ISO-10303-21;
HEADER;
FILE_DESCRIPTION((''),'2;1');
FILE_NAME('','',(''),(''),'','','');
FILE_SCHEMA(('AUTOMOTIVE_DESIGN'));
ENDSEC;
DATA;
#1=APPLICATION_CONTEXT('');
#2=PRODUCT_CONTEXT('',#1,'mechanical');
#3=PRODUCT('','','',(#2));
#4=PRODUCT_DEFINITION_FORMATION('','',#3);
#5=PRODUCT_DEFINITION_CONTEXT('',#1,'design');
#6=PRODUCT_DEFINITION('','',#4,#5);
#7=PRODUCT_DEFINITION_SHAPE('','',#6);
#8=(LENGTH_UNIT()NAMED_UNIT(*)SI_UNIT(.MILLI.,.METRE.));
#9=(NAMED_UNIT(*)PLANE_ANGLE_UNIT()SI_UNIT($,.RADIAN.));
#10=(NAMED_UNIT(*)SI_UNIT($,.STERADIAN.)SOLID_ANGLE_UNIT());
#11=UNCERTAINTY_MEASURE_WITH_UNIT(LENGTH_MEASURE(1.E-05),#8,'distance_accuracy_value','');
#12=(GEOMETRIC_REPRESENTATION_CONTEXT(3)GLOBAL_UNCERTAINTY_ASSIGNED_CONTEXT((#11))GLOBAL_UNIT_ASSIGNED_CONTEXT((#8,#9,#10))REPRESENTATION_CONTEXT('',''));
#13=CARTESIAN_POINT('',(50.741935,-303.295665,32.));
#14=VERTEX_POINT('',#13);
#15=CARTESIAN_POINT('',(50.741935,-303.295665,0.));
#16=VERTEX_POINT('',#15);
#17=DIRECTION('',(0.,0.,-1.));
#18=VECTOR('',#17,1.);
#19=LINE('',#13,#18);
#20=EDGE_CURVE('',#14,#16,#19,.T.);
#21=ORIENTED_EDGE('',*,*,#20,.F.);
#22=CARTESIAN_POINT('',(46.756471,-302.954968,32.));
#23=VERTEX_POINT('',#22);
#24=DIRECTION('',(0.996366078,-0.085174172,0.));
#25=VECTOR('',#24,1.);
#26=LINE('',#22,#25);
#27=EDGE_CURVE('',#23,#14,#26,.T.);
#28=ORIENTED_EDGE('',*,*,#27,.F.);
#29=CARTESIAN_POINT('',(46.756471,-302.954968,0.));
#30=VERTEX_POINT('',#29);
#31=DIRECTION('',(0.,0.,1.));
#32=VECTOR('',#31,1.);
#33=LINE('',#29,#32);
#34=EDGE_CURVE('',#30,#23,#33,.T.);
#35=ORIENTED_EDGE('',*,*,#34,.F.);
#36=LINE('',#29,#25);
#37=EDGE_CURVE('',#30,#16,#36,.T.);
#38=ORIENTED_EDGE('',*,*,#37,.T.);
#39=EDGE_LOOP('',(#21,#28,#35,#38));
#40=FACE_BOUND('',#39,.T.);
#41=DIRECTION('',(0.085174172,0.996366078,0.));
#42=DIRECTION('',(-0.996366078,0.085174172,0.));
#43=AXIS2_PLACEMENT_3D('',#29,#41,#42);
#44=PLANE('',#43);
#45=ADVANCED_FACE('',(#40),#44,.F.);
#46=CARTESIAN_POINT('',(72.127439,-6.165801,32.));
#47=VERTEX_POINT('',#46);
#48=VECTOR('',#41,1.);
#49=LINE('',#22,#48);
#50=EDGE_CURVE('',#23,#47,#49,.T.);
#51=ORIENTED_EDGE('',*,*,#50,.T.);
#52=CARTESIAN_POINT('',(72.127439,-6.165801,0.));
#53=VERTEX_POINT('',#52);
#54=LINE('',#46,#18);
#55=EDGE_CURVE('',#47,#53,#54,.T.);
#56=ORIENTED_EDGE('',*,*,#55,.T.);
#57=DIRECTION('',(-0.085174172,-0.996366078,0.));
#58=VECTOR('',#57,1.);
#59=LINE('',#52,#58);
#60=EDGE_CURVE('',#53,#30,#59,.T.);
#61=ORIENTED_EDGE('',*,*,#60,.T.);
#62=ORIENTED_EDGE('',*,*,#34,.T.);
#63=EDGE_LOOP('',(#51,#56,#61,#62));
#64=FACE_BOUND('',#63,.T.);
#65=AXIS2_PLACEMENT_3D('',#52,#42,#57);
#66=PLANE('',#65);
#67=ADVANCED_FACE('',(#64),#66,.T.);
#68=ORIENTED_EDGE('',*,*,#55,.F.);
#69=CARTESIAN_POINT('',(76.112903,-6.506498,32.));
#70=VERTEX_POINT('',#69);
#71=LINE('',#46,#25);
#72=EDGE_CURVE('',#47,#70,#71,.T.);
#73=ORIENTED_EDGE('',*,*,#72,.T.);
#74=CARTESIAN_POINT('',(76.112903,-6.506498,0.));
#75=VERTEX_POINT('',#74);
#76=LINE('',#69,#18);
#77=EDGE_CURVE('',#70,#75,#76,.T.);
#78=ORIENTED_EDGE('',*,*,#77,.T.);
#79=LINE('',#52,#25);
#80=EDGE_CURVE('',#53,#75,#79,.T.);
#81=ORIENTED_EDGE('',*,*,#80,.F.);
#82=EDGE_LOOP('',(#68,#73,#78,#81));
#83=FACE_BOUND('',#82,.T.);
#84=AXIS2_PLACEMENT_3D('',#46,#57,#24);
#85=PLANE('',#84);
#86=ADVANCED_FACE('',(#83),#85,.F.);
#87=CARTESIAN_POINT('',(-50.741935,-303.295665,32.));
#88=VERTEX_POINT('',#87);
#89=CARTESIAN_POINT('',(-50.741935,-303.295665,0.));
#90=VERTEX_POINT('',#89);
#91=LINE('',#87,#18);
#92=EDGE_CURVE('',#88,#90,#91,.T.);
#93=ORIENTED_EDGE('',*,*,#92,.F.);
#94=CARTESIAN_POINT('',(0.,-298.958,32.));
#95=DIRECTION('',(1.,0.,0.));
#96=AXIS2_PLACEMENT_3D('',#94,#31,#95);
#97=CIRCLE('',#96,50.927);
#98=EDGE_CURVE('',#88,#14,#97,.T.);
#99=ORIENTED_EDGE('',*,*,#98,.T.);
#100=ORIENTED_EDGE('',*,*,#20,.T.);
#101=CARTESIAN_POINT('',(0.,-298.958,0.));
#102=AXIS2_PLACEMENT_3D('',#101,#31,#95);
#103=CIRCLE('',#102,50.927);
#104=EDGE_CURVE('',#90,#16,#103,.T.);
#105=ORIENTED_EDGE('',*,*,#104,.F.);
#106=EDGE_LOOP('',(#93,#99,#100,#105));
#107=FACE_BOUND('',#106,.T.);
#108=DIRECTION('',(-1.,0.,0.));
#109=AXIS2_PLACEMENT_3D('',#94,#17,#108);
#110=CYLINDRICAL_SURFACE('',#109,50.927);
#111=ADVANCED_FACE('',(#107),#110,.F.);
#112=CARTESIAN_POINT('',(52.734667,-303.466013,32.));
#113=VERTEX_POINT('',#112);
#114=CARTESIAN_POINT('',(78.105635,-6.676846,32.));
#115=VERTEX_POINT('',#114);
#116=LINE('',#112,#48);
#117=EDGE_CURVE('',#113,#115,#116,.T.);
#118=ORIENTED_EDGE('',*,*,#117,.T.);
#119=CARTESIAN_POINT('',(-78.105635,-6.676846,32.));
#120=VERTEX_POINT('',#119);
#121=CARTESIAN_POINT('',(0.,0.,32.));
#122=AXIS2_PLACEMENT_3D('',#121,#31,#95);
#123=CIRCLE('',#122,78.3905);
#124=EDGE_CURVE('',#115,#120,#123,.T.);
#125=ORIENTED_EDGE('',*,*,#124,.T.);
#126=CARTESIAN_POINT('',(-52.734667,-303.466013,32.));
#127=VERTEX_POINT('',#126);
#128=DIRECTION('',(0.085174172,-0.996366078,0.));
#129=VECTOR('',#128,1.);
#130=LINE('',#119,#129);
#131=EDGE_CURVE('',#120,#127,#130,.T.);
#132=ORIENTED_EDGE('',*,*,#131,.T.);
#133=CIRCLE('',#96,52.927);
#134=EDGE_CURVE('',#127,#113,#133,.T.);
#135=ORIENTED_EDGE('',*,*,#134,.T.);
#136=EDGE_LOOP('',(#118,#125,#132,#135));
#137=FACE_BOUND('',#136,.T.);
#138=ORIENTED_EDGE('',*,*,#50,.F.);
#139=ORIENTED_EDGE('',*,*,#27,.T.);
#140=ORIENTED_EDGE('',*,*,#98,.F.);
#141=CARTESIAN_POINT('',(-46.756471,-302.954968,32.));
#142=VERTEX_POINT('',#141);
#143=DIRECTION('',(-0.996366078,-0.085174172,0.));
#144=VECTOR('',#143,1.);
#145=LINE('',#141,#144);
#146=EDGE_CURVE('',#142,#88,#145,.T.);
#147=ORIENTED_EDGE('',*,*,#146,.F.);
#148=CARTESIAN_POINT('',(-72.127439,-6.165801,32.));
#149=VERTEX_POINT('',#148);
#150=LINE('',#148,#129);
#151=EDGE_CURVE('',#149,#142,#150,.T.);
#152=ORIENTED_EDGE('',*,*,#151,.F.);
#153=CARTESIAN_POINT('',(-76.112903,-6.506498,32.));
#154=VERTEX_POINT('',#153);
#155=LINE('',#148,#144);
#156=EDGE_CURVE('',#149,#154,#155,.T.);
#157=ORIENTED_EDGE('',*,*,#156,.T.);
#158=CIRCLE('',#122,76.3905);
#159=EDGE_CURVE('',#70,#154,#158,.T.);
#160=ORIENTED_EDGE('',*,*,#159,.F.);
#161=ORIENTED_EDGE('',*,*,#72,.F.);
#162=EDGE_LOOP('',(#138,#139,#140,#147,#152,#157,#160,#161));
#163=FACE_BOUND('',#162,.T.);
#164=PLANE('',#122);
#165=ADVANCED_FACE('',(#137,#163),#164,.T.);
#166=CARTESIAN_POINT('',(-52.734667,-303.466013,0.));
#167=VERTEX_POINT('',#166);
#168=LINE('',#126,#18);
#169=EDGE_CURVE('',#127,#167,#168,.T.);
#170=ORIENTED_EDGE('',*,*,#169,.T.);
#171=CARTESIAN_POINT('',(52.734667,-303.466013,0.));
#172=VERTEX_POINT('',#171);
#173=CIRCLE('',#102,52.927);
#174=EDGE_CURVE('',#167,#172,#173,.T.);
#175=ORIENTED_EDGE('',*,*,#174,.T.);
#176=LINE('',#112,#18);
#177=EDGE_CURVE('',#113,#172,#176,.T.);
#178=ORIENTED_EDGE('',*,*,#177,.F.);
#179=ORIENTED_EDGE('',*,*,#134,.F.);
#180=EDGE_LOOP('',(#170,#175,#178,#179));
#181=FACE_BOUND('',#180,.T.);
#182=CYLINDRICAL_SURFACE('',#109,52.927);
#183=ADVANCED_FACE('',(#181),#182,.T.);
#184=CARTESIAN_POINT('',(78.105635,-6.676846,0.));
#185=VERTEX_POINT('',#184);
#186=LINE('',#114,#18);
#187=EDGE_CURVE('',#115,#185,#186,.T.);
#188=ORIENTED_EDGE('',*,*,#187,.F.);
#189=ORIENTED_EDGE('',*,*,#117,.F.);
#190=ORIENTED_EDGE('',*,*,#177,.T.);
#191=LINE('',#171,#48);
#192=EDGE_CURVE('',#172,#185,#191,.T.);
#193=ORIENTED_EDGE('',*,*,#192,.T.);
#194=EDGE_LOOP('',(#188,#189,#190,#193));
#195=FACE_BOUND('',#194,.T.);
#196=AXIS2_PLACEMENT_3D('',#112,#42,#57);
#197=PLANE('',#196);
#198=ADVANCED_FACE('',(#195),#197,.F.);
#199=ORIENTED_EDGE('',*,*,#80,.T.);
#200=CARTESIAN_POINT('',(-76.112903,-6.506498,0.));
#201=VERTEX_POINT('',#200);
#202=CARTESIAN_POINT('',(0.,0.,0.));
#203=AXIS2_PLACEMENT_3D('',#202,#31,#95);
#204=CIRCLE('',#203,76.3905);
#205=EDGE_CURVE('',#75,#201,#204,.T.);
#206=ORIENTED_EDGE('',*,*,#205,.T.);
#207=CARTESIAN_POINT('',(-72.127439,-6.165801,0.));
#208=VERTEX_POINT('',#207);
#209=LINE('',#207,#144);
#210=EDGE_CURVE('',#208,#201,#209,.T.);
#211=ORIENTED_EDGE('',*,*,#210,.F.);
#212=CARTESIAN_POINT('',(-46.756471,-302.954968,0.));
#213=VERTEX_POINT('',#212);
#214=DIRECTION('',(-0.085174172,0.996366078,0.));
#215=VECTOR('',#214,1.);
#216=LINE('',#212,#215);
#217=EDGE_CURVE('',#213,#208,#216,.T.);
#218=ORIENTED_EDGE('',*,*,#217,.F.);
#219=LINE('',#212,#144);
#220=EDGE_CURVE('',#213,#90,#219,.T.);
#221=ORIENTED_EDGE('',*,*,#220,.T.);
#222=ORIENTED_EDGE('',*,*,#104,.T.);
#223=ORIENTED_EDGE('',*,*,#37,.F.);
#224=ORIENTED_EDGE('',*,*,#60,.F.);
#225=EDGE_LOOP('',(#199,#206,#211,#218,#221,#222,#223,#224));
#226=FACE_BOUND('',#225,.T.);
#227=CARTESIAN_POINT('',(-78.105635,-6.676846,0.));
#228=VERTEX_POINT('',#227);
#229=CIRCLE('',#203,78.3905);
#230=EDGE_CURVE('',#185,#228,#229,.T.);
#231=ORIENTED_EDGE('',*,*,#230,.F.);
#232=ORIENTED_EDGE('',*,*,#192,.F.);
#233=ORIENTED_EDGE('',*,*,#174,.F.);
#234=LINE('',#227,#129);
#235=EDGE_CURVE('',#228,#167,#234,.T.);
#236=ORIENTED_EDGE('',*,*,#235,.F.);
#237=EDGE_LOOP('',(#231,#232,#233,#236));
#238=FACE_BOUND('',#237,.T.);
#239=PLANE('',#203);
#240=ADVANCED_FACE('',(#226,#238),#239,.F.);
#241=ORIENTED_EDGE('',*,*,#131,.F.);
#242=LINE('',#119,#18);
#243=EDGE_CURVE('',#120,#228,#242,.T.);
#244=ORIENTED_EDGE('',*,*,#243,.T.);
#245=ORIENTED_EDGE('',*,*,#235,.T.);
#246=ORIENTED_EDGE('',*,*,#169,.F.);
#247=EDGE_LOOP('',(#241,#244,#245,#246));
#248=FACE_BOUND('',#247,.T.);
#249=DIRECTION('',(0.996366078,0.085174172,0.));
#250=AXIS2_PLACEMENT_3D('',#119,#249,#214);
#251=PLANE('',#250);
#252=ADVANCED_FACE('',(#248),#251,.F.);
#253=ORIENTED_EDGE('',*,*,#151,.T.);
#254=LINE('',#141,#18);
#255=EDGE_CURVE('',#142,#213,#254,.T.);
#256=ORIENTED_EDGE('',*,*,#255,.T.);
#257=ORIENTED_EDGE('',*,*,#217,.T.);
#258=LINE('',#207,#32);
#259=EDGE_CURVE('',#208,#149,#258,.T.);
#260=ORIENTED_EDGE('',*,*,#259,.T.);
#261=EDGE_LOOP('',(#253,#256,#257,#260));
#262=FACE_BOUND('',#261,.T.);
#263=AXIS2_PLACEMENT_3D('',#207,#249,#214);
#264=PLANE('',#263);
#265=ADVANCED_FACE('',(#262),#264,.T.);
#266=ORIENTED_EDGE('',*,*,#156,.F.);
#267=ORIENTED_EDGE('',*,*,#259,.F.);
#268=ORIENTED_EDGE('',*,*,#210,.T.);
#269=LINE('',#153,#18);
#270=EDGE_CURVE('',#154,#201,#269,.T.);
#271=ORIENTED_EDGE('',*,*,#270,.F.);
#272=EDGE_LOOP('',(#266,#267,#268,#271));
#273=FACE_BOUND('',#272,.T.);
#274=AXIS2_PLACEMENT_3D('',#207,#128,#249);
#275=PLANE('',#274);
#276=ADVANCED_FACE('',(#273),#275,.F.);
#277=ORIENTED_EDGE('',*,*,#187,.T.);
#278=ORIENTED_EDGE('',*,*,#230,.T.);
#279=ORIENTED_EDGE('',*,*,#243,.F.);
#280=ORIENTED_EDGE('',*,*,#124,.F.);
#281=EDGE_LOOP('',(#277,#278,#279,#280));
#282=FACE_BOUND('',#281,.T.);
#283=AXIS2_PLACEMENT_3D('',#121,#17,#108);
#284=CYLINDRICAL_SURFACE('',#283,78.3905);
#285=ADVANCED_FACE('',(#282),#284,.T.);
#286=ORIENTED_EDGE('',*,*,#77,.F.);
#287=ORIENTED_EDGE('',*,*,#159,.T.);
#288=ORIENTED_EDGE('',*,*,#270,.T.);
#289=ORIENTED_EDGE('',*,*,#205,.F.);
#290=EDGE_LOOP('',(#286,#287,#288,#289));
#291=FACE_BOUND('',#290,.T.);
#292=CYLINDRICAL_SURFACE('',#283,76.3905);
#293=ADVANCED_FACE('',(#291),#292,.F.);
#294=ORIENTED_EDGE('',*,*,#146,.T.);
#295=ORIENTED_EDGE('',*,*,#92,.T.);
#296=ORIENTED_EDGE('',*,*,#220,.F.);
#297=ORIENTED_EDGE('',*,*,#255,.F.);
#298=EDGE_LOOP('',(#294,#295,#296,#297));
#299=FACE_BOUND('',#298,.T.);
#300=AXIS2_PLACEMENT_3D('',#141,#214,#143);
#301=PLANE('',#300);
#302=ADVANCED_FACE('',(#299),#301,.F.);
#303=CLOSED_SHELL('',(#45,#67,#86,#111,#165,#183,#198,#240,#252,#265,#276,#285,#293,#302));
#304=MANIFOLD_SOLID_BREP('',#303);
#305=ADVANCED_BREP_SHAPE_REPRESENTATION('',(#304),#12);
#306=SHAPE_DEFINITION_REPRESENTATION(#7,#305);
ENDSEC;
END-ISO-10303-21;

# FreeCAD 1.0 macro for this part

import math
import FreeCAD as App
import Part
import Sketcher
from FreeCAD import Vector


def add_polygon(sketch, points):
    """Adds a closed chain of lines whose ends are joined by coincident constraints."""
    first, n = sketch.GeometryCount, len(points)
    for a, b in zip(points, points[1:] + points[:1]):
        sketch.addGeometry(Part.LineSegment(App.Vector(*a, 0), App.Vector(*b, 0)), False)
    for i in range(n):
        sketch.addConstraint(Sketcher.Constraint("Coincident", first + i, 2, first + (i + 1) % n, 1))

doc = App.newDocument("Part")
body = doc.addObject("PartDesign::Body", "Body")

# Sketch on XY plane
sketch1 = body.newObject("Sketcher::SketchObject", "Sketch")
sketch1.AttachmentSupport = (doc.getObject("XY_Plane"), [""])
sketch1.MapMode = "FlatFace"
sketch1.addGeometry([
    Part.LineSegment(Vector(-78, -7, 0), Vector(-53, -303, 0)),  # 0
    Part.ArcOfCircle(Part.Circle(Vector(0, -299, 0), Vector(0, 0, 1), 53), math.radians(-175), math.radians(-5)),  # 1
    Part.LineSegment(Vector(53, -303, 0), Vector(78, -7, 0)),  # 2
    Part.ArcOfCircle(Part.Circle(Vector(0, 0, 0), Vector(0, 0, 1), 78), math.radians(-5), math.radians(185)),  # 3
    Part.LineSegment(Vector(-51, -303, 0), Vector(-76, -7, 0)),  # 4
    Part.ArcOfCircle(Part.Circle(Vector(0, 0, 0), Vector(0, 0, 1), 76), math.radians(-5), math.radians(185)),  # 5
    Part.LineSegment(Vector(76, -7, 0), Vector(51, -303, 0)),  # 6
    Part.ArcOfCircle(Part.Circle(Vector(0, -299, 0), Vector(0, 0, 1), 51), math.radians(-175), math.radians(-5)),  # 7
], False)
sketch1.addConstraint([
    Sketcher.Constraint("Tangent", 0, 2, 1, 1),
    Sketcher.Constraint("Tangent", 1, 2, 2, 1),
    Sketcher.Constraint("Tangent", 2, 2, 3, 1),
    Sketcher.Constraint("Tangent", 3, 2, 0, 1),
    Sketcher.Constraint("Tangent", 4, 2, 5, 2),
    Sketcher.Constraint("Tangent", 5, 1, 6, 1),
    Sketcher.Constraint("Tangent", 6, 2, 7, 2),
    Sketcher.Constraint("Tangent", 7, 1, 4, 1),
    Sketcher.Constraint("Coincident", 3, 3, -1, 1),
    Sketcher.Constraint("Coincident", 5, 3, -1, 1),
    Sketcher.Constraint("Coincident", 7, 3, 1, 3),
    Sketcher.Constraint("PointOnObject", 1, 3, -2),
    Sketcher.Constraint("Parallel", 0, 4),
    Sketcher.Constraint("Radius", 1, 52.927),
    Sketcher.Constraint("Radius", 7, 50.927),
    Sketcher.Constraint("Radius", 3, 78.3905),
    Sketcher.Constraint("DistanceY", 1, 3, -1, 1, 298.958),
])
pad1 = body.newObject("PartDesign::Pad", "Pad")
pad1.Profile = sketch1
pad1.Length = 32

# Sketch on an angled plane
sketch2 = body.newObject("Sketcher::SketchObject", "Sketch001")
sketch2.Placement = App.Placement(Vector(76.112903, -6.506498, 0), App.Rotation(Vector(0, 0, 1), Vector(0.085174172, 0.996366078, 0), Vector(-0.996366078, 0.085174172, 0), "ZXY"))
add_polygon(sketch2, [(0, 0), (0, -298), (32, -298), (32, 0)])  # lines 0-3
sketch2.addConstraint([
    Sketcher.Constraint("Vertical", 0),
    Sketcher.Constraint("Horizontal", 1),
    Sketcher.Constraint("Vertical", 2),
    Sketcher.Constraint("Horizontal", 3),
    Sketcher.Constraint("Coincident", 3, 2, -1, 1),
    Sketcher.Constraint("DistanceX", 1, 1, 1, 2, 32.0),
    Sketcher.Constraint("DistanceY", 0, 2, 0, 1, 297.87161),
])
pad2 = body.newObject("PartDesign::Pad", "Pad001")
pad2.Profile = sketch2
pad2.Length = 4

# Sketch on an angled plane
sketch3 = body.newObject("Sketcher::SketchObject", "Sketch002")
sketch3.Placement = App.Placement(Vector(-76.112903, -6.506498, 0), App.Rotation(Vector(0, 0, -1), Vector(-0.085174172, 0.996366078, 0), Vector(0.996366078, 0.085174172, 0), "ZXY"))
add_polygon(sketch3, [(-32, 0), (-32, -298), (0, -298), (0, 0)])  # lines 0-3
sketch3.addConstraint([
    Sketcher.Constraint("Vertical", 0),
    Sketcher.Constraint("Horizontal", 1),
    Sketcher.Constraint("Vertical", 2),
    Sketcher.Constraint("Horizontal", 3),
    Sketcher.Constraint("Coincident", 2, 2, -1, 1),
    Sketcher.Constraint("DistanceX", 1, 1, 1, 2, 32.0),
    Sketcher.Constraint("DistanceY", 0, 2, 0, 1, 297.87161),
])
pad3 = body.newObject("PartDesign::Pad", "Pad002")
pad3.Profile = sketch3
pad3.Length = 4

doc.recompute()
